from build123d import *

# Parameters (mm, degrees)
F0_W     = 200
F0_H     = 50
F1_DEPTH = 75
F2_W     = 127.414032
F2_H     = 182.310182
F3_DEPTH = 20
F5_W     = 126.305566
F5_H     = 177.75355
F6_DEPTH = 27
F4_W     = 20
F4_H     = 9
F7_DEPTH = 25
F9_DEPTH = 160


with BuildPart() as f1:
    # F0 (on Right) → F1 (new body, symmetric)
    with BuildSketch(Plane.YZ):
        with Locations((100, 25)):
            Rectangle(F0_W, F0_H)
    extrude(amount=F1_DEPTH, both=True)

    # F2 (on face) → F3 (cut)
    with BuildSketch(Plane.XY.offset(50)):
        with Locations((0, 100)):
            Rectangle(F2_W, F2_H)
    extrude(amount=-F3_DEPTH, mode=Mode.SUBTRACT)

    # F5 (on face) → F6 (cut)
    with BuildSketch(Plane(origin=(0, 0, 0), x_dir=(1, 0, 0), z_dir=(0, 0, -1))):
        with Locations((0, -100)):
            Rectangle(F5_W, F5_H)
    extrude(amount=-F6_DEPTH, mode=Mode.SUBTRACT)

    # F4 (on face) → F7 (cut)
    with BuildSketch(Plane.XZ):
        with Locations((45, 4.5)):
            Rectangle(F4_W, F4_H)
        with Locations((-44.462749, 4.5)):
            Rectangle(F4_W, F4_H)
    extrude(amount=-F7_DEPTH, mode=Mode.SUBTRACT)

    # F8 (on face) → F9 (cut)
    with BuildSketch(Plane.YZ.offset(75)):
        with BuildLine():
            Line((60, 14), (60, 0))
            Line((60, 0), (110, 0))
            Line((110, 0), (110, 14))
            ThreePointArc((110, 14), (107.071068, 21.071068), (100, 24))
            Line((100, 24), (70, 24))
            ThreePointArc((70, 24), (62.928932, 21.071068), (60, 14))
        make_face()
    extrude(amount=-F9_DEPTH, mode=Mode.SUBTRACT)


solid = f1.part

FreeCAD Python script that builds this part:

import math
import FreeCAD as App
import Part
import Sketcher
Q = App.Units.Quantity


def add_polygon(sketch, points):
    """Adds a closed chain of lines whose ends are joined by coincident constraints."""
    first, n = sketch.GeometryCount, len(points)
    for a, b in zip(points, points[1:] + points[:1]):
        sketch.addGeometry(Part.LineSegment(App.Vector(*a, 0), App.Vector(*b, 0)), False)
    for i in range(n):
        sketch.addConstraint(Sketcher.Constraint("Coincident", first + i, 2, first + (i + 1) % n, 1))

doc = App.newDocument("Part")
body = doc.addObject("PartDesign::Body", "Body")

# Sketch on YZ plane
sketch1 = body.newObject("Sketcher::SketchObject", "Sketch")
sketch1.AttachmentSupport = (doc.getObject("YZ_Plane"), [""])
sketch1.MapMode = "FlatFace"
add_polygon(sketch1, [(0, 50), (0, 0), (200, 0), (200, 50)])  # lines 0-3
sketch1.addConstraint([
    Sketcher.Constraint("Vertical", 0),
    Sketcher.Constraint("Horizontal", 1),
    Sketcher.Constraint("Vertical", 2),
    Sketcher.Constraint("Horizontal", 3),
    Sketcher.Constraint("Coincident", 0, 2, -1, 1),
    Sketcher.Constraint("DistanceX", 1, 1, 1, 2, Q("200 mm")),
    Sketcher.Constraint("DistanceY", 0, 2, 0, 1, Q("50 mm")),
])
pad1 = body.newObject("PartDesign::Pad", "Pad")
pad1.Profile = sketch1
pad1.Length = 150
pad1.Midplane = True

# Sketch on XY plane
sketch2 = body.newObject("Sketcher::SketchObject", "Sketch001")
sketch2.AttachmentSupport = (doc.getObject("XY_Plane"), [""])
sketch2.MapMode = "FlatFace"
sketch2.AttachmentOffset = App.Placement(App.Vector(0, 0, 50), App.Rotation())
add_polygon(sketch2, [(-64, 191), (-64, 9), (64, 9), (64, 191)])  # lines 0-3
sketch2.addConstraint([
    Sketcher.Constraint("Vertical", 0),
    Sketcher.Constraint("Horizontal", 1),
    Sketcher.Constraint("Vertical", 2),
    Sketcher.Constraint("Horizontal", 3),
    Sketcher.Constraint("DistanceY", 0, 2, 0, 1, Q("182.310182 mm")),
    Sketcher.Constraint("DistanceX", 1, 1, 1, 2, Q("127.414032 mm")),
    Sketcher.Constraint("DistanceY", -1, 1, 0, 2, Q("8.844909 mm")),
    Sketcher.Constraint("DistanceX", 0, 2, -1, 1, Q("63.707016 mm")),
])
pocket1 = body.newObject("PartDesign::Pocket", "Pocket")
pocket1.Profile = sketch2
pocket1.Length = 20

# Sketch on XY plane
sketch3 = body.newObject("Sketcher::SketchObject", "Sketch002")
sketch3.AttachmentSupport = (doc.getObject("XY_Plane"), [""])
sketch3.MapMode = "FlatFace"
add_polygon(sketch3, [(-63, 11), (-63, 189), (63, 189), (63, 11)])  # lines 0-3
sketch3.addConstraint([
    Sketcher.Constraint("Vertical", 0),
    Sketcher.Constraint("Horizontal", 1),
    Sketcher.Constraint("Vertical", 2),
    Sketcher.Constraint("Horizontal", 3),
    Sketcher.Constraint("DistanceY", 0, 1, 0, 2, Q("177.75355 mm")),
    Sketcher.Constraint("DistanceX", 1, 1, 1, 2, Q("126.305566 mm")),
    Sketcher.Constraint("DistanceX", 0, 2, -1, 1, Q("63.152783 mm")),
    Sketcher.Constraint("DistanceY", -1, 1, 0, 2, Q("188.876775 mm")),
])
pocket2 = body.newObject("PartDesign::Pocket", "Pocket001")
pocket2.Profile = sketch3
pocket2.Length = 27
pocket2.Reversed = True

# Sketch on XZ plane
sketch4 = body.newObject("Sketcher::SketchObject", "Sketch003")
sketch4.AttachmentSupport = (doc.getObject("XZ_Plane"), [""])
sketch4.MapMode = "FlatFace"
add_polygon(sketch4, [(35, 9), (35, 0), (55, 0), (55, 9)])  # lines 0-3
add_polygon(sketch4, [(-54, 9), (-54, 0), (-34, 0), (-34, 9)])  # lines 4-7
sketch4.addConstraint([
    Sketcher.Constraint("Vertical", 0),
    Sketcher.Constraint("Horizontal", 1),
    Sketcher.Constraint("Vertical", 2),
    Sketcher.Constraint("Horizontal", 3),
    Sketcher.Constraint("Vertical", 4),
    Sketcher.Constraint("Horizontal", 5),
    Sketcher.Constraint("Vertical", 6),
    Sketcher.Constraint("Horizontal", 7),
    Sketcher.Constraint("PointOnObject", 0, 2, -1),
    Sketcher.Constraint("PointOnObject", 4, 2, -1),
    Sketcher.Constraint("Horizontal", 3, 2, 6, 2),
    Sketcher.Constraint("Equal", 3, 5),
    Sketcher.Constraint("DistanceX", 1, 1, 1, 2, Q("20 mm")),
    Sketcher.Constraint("DistanceY", 0, 2, 0, 1, Q("9 mm")),
    Sketcher.Constraint("DistanceX", -1, 1, 0, 2, Q("35 mm")),
    Sketcher.Constraint("DistanceX", 4, 2, -1, 1, Q("54.462749 mm")),
])
pocket3 = body.newObject("PartDesign::Pocket", "Pocket002")
pocket3.Profile = sketch4
pocket3.Length = 25

# Sketch on YZ plane
sketch5 = body.newObject("Sketcher::SketchObject", "Sketch004")
sketch5.AttachmentSupport = (doc.getObject("YZ_Plane"), [""])
sketch5.MapMode = "FlatFace"
sketch5.AttachmentOffset = App.Placement(App.Vector(0, 0, 75), App.Rotation())
sketch5.addGeometry([
    Part.LineSegment(App.Vector(60, 14, 0), App.Vector(60, 0, 0)),  # 0
    Part.LineSegment(App.Vector(60, 0, 0), App.Vector(110, 0, 0)),  # 1
    Part.LineSegment(App.Vector(110, 0, 0), App.Vector(110, 14, 0)),  # 2
    Part.ArcOfCircle(Part.Circle(App.Vector(100, 14, 0), App.Vector(0, 0, 1), 10), math.radians(0), math.radians(90)),  # 3
    Part.LineSegment(App.Vector(100, 24, 0), App.Vector(70, 24, 0)),  # 4
    Part.ArcOfCircle(Part.Circle(App.Vector(70, 14, 0), App.Vector(0, 0, 1), 10), math.radians(90), math.radians(180)),  # 5
], False)
sketch5.addConstraint([
    Sketcher.Constraint("Coincident", 0, 2, 1, 1),
    Sketcher.Constraint("Coincident", 1, 2, 2, 1),
    Sketcher.Constraint("Tangent", 2, 2, 3, 1),
    Sketcher.Constraint("Tangent", 3, 2, 4, 1),
    Sketcher.Constraint("Tangent", 4, 2, 5, 1),
    Sketcher.Constraint("Tangent", 5, 2, 0, 1),
    Sketcher.Constraint("Vertical", 0),
    Sketcher.Constraint("Horizontal", 1),
    Sketcher.Constraint("Vertical", 2),
    Sketcher.Constraint("Horizontal", 4),
    Sketcher.Constraint("Equal", 3, 5),
    Sketcher.Constraint("PointOnObject", 0, 2, -1),
    Sketcher.Constraint("Radius", 3, Q("9.999999 mm")),
    Sketcher.Constraint("DistanceX", 1, 1, 1, 2, Q("50 mm")),
    Sketcher.Constraint("DistanceY", 0, 2, 0, 1, Q("14 mm")),
    Sketcher.Constraint("DistanceX", -1, 1, 3, 3, Q("100.000001 mm")),
])
pocket4 = body.newObject("PartDesign::Pocket", "Pocket003")
pocket4.Profile = sketch5
pocket4.Length = 160

doc.recompute()
